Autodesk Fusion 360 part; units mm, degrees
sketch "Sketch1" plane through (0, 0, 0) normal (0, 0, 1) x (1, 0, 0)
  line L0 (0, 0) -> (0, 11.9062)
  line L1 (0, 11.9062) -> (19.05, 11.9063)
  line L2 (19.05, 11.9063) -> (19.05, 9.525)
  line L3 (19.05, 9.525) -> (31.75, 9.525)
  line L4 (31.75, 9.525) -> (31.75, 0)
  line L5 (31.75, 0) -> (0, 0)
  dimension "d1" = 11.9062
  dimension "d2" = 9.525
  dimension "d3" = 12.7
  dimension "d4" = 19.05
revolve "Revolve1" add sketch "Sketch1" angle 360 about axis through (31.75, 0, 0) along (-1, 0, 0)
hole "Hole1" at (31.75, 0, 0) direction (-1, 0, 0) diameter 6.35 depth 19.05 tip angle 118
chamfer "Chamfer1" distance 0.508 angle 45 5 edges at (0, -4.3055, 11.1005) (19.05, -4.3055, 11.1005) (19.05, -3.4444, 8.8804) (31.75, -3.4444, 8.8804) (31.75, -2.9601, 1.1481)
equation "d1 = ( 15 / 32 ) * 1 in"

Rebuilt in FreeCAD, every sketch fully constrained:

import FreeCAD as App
import Part
import Sketcher
Q = App.Units.Quantity


def edges_at(feature, points):
    """Names of the edges that pass closest to the given points."""
    edges = feature.Shape.Edges
    near = lambda p: min(range(len(edges)), key=lambda i: edges[i].distToShape(Part.Vertex(*p))[0])
    return sorted({f"Edge{near(p) + 1}" for p in points})


def add_polygon(sketch, points):
    """Adds a closed chain of lines whose ends are joined by coincident constraints."""
    first, n = sketch.GeometryCount, len(points)
    for a, b in zip(points, points[1:] + points[:1]):
        sketch.addGeometry(Part.LineSegment(App.Vector(*a, 0), App.Vector(*b, 0)), False)
    for i in range(n):
        sketch.addConstraint(Sketcher.Constraint("Coincident", first + i, 2, first + (i + 1) % n, 1))

doc = App.newDocument("Part")
body = doc.addObject("PartDesign::Body", "Body")

sketch1 = doc.addObject("Sketcher::SketchObject", "Sketch")
body.addObject(sketch1)
sketch1.AttachmentSupport = (doc.XY_Plane, [""])
sketch1.MapMode = "FlatFace"
add_polygon(sketch1, [(0, 11.9062), (0, 0), (31.75, 0), (31.75, 9.525), (19.05, 9.525), (19.05, 11.9063)])
sketch1.addConstraint(Sketcher.Constraint("Vertical", 0))
sketch1.addConstraint(Sketcher.Constraint("Horizontal", 1))
sketch1.addConstraint(Sketcher.Constraint("Vertical", 2))
sketch1.addConstraint(Sketcher.Constraint("Horizontal", 3))
sketch1.addConstraint(Sketcher.Constraint("Vertical", 4))
sketch1.addConstraint(Sketcher.Constraint("Horizontal", 5))
sketch1.addConstraint(Sketcher.Constraint("Coincident", 0, 2, -1, 1))
sketch1.addConstraint(Sketcher.Constraint("DistanceX", 3, 2, 3, 1, Q("0.5 in")))
sketch1.addConstraint(Sketcher.Constraint("DistanceX", 5, 2, 5, 1, Q("0.75 in")))
sketch1.addConstraint(Sketcher.Constraint("DistanceY", 0, 2, 0, 1, Q("0.468748 in")))
sketch1.addConstraint(Sketcher.Constraint("DistanceY", 2, 1, 2, 2, Q("0.375 in")))
revolution = doc.addObject("PartDesign::Revolution", "Revolution")
body.addObject(revolution)
revolution.Profile = sketch1
revolution.ReferenceAxis = (sketch1, ["H_Axis"])
revolution.Angle = 360

sketch2 = doc.addObject("Sketcher::SketchObject", "Sketch001")
body.addObject(sketch2)
sketch2.AttachmentSupport = (doc.YZ_Plane, [""])
sketch2.MapMode = "FlatFace"
sketch2.AttachmentOffset = App.Placement(App.Vector(0, 0, 1.25 * 25.4), App.Rotation())
sketch2.addGeometry(Part.Circle(App.Vector(0, 0, 0), App.Vector(0, 0, 1), 3.175), False)
sketch2.addConstraint(Sketcher.Constraint("Coincident", 0, 3, -1, 1))
sketch2.addConstraint(Sketcher.Constraint("Diameter", 0, Q("0.25 in")))
doc.recompute()
hole = doc.addObject("PartDesign::Hole", "Hole")
body.addObject(hole)
hole.Profile = sketch2
hole.ThreadType = "None"
hole.Diameter = Q("0.25 in")
hole.DepthType = "Dimension"
hole.Depth = Q("0.75 in")
hole.DrillPoint = "Angled"
hole.DrillPointAngle = 118
doc.recompute()

chamfer = doc.addObject("PartDesign::Chamfer", "Chamfer")
body.addObject(chamfer)
chamfer.Base = (hole, edges_at(hole, [
    (0, -4.306, 11.101),
    (19.05, -4.306, 11.101),
    (19.05, -3.444, 8.88),
    (31.75, -3.444, 8.88),
    (31.75, -2.96, 1.148),
]))
chamfer.Size = Q("0.02 in")

doc.recompute()
